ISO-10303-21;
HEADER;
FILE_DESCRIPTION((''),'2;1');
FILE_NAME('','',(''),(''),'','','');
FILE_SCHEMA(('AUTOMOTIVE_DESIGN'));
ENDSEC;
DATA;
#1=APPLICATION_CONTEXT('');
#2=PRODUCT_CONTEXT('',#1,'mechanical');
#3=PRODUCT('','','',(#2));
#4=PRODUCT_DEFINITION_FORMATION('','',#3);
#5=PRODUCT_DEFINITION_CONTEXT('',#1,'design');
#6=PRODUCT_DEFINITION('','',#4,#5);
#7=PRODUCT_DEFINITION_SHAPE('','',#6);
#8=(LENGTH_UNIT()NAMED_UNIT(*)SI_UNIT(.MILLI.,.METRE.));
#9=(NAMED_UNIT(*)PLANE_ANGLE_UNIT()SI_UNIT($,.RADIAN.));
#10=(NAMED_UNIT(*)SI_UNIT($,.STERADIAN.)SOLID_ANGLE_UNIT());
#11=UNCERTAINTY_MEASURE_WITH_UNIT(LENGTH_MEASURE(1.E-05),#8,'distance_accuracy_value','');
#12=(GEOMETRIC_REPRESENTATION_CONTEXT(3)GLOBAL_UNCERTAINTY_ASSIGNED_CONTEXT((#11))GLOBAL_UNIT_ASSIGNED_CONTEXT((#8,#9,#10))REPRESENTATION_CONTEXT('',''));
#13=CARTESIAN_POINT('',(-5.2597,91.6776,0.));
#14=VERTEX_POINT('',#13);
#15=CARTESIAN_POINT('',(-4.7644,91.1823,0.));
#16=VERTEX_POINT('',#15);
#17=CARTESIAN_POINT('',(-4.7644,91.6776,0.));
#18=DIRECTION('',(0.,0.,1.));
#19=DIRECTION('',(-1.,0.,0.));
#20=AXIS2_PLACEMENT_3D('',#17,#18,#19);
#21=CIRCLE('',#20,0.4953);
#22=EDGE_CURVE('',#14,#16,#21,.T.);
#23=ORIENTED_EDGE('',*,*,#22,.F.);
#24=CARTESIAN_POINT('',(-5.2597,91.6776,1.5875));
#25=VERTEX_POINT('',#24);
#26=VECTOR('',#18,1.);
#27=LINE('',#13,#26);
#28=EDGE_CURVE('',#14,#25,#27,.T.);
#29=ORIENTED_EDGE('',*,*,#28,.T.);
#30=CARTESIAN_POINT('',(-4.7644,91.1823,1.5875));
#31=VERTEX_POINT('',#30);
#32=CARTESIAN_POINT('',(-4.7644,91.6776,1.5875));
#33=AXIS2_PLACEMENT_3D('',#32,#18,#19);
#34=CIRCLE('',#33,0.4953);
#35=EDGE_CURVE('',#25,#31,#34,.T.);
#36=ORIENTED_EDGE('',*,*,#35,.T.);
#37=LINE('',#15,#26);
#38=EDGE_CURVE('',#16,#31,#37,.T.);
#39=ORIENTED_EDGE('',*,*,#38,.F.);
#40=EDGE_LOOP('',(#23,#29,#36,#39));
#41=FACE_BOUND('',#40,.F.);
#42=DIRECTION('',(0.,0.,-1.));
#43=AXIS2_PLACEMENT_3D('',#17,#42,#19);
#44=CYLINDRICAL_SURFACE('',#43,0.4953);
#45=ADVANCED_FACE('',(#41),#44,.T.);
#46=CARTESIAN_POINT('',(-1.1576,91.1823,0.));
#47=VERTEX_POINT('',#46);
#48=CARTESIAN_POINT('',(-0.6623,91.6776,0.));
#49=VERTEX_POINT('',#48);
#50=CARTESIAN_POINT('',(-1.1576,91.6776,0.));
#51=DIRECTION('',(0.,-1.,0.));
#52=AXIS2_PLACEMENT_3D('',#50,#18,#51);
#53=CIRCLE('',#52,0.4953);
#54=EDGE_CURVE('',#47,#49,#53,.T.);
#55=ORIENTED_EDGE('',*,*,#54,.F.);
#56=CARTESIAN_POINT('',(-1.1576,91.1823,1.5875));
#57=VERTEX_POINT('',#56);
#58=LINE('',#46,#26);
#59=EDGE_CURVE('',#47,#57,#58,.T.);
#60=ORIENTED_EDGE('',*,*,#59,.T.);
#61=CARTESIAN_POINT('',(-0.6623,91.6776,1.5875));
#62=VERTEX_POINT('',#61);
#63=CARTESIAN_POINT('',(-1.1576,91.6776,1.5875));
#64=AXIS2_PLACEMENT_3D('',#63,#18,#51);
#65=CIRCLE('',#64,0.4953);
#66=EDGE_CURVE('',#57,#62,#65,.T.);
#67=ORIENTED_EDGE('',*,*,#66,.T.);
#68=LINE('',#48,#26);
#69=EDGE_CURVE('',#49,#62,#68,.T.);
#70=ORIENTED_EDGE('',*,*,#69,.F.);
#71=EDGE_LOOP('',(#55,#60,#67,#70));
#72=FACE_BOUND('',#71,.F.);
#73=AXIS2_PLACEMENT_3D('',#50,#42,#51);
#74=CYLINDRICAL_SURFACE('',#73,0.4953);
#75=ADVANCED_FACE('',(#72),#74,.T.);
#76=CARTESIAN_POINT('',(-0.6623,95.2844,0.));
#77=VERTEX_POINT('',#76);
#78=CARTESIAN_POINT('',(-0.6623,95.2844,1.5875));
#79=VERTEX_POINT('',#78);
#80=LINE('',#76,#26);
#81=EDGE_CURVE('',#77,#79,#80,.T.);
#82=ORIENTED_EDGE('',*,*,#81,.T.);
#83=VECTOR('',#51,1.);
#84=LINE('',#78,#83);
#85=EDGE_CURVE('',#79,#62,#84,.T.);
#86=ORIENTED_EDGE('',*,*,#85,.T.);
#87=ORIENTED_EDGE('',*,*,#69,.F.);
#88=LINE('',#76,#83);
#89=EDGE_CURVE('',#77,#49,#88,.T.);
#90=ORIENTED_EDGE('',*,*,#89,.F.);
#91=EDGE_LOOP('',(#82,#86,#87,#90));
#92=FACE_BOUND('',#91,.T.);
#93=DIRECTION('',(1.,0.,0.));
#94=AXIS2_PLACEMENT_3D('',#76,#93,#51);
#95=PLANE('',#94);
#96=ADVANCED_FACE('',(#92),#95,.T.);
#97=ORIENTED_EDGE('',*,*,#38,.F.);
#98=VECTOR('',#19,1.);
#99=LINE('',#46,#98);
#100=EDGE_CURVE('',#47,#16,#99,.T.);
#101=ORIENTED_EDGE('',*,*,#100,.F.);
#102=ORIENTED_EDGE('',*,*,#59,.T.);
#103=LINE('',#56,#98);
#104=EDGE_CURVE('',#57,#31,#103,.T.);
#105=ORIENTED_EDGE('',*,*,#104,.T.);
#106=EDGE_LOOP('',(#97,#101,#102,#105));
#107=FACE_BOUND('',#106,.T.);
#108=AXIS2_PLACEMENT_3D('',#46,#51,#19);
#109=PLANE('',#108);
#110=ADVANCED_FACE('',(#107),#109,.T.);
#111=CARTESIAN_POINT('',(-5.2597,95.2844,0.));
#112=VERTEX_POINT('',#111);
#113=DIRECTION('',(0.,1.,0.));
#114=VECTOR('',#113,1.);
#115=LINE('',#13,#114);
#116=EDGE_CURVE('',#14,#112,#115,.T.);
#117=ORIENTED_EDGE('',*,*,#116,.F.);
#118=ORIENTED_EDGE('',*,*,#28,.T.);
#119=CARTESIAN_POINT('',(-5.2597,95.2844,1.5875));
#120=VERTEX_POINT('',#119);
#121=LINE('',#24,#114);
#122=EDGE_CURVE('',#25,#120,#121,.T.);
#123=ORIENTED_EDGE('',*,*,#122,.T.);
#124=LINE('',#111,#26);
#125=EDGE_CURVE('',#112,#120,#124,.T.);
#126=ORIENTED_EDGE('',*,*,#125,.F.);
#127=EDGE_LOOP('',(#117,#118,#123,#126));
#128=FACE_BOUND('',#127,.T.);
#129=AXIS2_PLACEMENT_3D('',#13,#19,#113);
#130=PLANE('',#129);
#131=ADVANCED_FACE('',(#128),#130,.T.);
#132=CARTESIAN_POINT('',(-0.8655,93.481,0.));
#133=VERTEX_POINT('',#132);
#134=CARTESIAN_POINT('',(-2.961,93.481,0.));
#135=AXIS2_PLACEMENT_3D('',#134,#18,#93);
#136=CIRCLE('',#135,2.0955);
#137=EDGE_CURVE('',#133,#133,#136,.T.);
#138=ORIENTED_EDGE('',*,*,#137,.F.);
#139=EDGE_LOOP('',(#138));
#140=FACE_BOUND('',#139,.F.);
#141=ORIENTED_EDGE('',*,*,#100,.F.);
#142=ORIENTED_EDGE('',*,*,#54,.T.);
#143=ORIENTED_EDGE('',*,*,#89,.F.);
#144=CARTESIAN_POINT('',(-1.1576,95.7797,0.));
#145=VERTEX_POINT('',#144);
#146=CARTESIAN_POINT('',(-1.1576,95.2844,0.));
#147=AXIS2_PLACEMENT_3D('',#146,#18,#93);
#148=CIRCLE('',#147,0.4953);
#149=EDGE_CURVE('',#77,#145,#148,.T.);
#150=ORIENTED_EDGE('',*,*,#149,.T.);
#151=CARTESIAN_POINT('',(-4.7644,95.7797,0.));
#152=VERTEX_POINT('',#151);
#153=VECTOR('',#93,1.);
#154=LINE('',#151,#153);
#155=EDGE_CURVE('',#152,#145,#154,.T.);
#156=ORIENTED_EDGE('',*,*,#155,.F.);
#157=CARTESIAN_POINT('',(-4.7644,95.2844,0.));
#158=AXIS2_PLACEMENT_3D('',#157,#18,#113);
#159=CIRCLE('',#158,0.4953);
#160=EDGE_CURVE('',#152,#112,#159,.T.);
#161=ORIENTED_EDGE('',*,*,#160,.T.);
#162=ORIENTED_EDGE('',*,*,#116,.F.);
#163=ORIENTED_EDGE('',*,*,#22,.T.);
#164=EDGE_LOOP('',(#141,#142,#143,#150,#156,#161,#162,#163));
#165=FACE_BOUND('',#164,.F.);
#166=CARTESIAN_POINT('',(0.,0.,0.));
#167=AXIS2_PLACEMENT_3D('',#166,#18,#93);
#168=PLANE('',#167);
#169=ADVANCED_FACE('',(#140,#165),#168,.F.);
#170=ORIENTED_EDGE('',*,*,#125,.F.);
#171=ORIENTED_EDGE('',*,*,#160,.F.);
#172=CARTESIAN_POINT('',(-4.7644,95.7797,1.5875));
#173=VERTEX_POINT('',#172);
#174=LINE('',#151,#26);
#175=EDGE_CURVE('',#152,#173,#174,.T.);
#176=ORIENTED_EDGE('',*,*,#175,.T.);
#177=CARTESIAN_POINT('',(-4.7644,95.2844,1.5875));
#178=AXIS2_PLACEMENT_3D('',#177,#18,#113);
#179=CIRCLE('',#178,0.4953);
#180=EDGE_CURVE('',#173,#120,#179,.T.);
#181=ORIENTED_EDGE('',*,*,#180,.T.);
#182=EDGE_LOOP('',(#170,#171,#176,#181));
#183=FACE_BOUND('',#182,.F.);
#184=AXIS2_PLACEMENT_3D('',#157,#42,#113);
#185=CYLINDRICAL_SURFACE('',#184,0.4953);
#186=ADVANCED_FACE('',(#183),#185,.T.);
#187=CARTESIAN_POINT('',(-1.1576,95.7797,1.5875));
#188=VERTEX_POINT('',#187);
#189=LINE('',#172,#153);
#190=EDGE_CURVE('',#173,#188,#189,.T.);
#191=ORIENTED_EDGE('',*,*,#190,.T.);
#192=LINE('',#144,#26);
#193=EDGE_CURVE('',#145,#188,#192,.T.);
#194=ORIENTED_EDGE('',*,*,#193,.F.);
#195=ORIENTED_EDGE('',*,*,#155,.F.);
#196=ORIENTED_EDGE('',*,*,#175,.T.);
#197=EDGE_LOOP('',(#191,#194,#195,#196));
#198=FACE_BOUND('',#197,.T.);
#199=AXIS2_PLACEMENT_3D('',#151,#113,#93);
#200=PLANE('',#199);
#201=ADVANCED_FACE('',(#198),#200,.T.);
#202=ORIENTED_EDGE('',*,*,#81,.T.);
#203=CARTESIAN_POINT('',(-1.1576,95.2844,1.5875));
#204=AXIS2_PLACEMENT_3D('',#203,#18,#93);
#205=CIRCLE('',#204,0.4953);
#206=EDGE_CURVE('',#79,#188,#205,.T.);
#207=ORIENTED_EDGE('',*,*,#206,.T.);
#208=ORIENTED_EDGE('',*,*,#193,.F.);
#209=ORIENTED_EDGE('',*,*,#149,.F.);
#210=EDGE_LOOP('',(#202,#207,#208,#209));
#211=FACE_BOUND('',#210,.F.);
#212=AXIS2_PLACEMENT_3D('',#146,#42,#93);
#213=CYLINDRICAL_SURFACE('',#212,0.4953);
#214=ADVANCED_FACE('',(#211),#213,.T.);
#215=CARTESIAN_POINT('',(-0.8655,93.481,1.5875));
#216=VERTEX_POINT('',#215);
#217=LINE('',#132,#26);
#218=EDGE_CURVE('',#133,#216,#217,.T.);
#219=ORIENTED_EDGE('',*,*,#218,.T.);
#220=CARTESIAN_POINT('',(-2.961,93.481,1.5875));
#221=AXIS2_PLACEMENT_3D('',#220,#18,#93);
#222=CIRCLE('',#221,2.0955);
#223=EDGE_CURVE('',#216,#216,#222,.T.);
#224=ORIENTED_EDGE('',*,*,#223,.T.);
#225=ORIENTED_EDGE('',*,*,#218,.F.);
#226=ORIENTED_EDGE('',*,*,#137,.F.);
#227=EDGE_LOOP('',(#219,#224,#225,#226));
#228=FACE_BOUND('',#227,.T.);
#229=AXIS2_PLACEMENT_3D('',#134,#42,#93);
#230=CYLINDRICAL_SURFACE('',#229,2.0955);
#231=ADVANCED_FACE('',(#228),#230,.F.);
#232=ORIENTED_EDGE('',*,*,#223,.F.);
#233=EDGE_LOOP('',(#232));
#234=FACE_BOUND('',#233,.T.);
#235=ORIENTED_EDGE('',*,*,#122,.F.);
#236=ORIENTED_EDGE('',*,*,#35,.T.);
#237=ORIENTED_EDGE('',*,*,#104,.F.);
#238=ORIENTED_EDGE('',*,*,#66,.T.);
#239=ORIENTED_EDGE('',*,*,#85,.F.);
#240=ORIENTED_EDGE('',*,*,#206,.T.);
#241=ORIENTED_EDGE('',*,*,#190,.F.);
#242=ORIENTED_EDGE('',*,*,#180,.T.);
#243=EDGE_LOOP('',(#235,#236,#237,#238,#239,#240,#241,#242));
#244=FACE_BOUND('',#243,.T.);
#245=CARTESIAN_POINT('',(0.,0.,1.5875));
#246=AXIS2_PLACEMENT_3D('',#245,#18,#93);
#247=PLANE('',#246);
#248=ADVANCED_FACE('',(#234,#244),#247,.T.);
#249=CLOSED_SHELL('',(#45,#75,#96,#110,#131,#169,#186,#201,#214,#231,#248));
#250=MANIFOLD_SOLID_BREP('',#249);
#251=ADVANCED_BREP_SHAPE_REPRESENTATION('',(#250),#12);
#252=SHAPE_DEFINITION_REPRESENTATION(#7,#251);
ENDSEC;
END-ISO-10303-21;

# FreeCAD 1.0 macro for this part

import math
import FreeCAD as App
import Part
import Sketcher
Q = App.Units.Quantity

doc = App.newDocument("Part")
params = doc.addObject("Spreadsheet::Sheet", "Params")
for row, (alias, value) in enumerate([
    ("sketch1_diameter", "0.165 in"),
    ("sketch1_width", "0.142 in"),
    ("pad1_length", "0.0625 in"),
], start=1):
    params.set(f"A{row}", alias)
    params.set(f"B{row}", "=" + value)
    params.setAlias(f"B{row}", alias)

body = doc.addObject("PartDesign::Body", "Body")

sketch1 = body.newObject("Sketcher::SketchObject", "Sketch")
sketch1.AttachmentSupport = (doc.getObject("XY_Plane"), [""])
sketch1.MapMode = "FlatFace"
sketch1.addGeometry(Part.LineSegment(App.Vector(-5.26, 95.28, 0), App.Vector(-5.26, 91.68, 0)), False)
sketch1.addGeometry(Part.ArcOfCircle(Part.Circle(App.Vector(-4.76, 91.68, 0), App.Vector(0, 0, 1), 0.5), math.radians(180), math.radians(270)), False)
sketch1.addGeometry(Part.LineSegment(App.Vector(-4.76, 91.18, 0), App.Vector(-1.16, 91.18, 0)), False)
sketch1.addGeometry(Part.ArcOfCircle(Part.Circle(App.Vector(-1.16, 91.68, 0), App.Vector(0, 0, 1), 0.5), math.radians(-90), math.radians(0)), False)
sketch1.addGeometry(Part.LineSegment(App.Vector(-0.66, 91.68, 0), App.Vector(-0.66, 95.28, 0)), False)
sketch1.addGeometry(Part.ArcOfCircle(Part.Circle(App.Vector(-1.16, 95.28, 0), App.Vector(0, 0, 1), 0.5), math.radians(0), math.radians(90)), False)
sketch1.addGeometry(Part.LineSegment(App.Vector(-1.16, 95.78, 0), App.Vector(-4.76, 95.78, 0)), False)
sketch1.addGeometry(Part.ArcOfCircle(Part.Circle(App.Vector(-4.76, 95.28, 0), App.Vector(0, 0, 1), 0.5), math.radians(90), math.radians(180)), False)
sketch1.addGeometry(Part.Circle(App.Vector(-2.96, 93.48, 0), App.Vector(0, 0, 1), 2.1), False)
sketch1.addConstraint(Sketcher.Constraint("Tangent", 0, 2, 1, 1))
sketch1.addConstraint(Sketcher.Constraint("Tangent", 1, 2, 2, 1))
sketch1.addConstraint(Sketcher.Constraint("Tangent", 2, 2, 3, 1))
sketch1.addConstraint(Sketcher.Constraint("Tangent", 3, 2, 4, 1))
sketch1.addConstraint(Sketcher.Constraint("Tangent", 4, 2, 5, 1))
sketch1.addConstraint(Sketcher.Constraint("Tangent", 5, 2, 6, 1))
sketch1.addConstraint(Sketcher.Constraint("Tangent", 6, 2, 7, 1))
sketch1.addConstraint(Sketcher.Constraint("Tangent", 7, 2, 0, 1))
sketch1.addConstraint(Sketcher.Constraint("Vertical", 0))
sketch1.addConstraint(Sketcher.Constraint("Horizontal", 2))
sketch1.addConstraint(Sketcher.Constraint("Vertical", 4))
sketch1.addConstraint(Sketcher.Constraint("Horizontal", 6))
sketch1.addConstraint(Sketcher.Constraint("Equal", 1, 3))
sketch1.addConstraint(Sketcher.Constraint("Equal", 3, 5))
sketch1.addConstraint(Sketcher.Constraint("Equal", 5, 7))
sketch1.addConstraint(Sketcher.Constraint("Equal", 6, 0))
sketch1.addConstraint(Sketcher.Constraint("Diameter", 8, Q("0.165 in")))
sketch1.addConstraint(Sketcher.Constraint("Radius", 1, Q("0.0195 in")))
sketch1.addConstraint(Sketcher.Constraint("DistanceX", 2, 1, 2, 2, Q("0.142 in")))
sketch1.addConstraint(Sketcher.Constraint("DistanceX", 8, 3, 3, 3, Q("0.071 in")))
sketch1.addConstraint(Sketcher.Constraint("DistanceY", 3, 3, 8, 3, Q("0.071 in")))
sketch1.addConstraint(Sketcher.Constraint("DistanceX", 1, 3, -1, 1, Q("4.7644 mm")))
sketch1.addConstraint(Sketcher.Constraint("DistanceY", -1, 1, 1, 3, Q("91.6776 mm")))
sketch1.setExpression("Constraints[16]", "Params.sketch1_diameter")
sketch1.setExpression("Constraints[18]", "Params.sketch1_width")
pad1 = body.newObject("PartDesign::Pad", "Pad")
pad1.Profile = sketch1
pad1.setExpression("Length", "Params.pad1_length")

doc.recompute()
